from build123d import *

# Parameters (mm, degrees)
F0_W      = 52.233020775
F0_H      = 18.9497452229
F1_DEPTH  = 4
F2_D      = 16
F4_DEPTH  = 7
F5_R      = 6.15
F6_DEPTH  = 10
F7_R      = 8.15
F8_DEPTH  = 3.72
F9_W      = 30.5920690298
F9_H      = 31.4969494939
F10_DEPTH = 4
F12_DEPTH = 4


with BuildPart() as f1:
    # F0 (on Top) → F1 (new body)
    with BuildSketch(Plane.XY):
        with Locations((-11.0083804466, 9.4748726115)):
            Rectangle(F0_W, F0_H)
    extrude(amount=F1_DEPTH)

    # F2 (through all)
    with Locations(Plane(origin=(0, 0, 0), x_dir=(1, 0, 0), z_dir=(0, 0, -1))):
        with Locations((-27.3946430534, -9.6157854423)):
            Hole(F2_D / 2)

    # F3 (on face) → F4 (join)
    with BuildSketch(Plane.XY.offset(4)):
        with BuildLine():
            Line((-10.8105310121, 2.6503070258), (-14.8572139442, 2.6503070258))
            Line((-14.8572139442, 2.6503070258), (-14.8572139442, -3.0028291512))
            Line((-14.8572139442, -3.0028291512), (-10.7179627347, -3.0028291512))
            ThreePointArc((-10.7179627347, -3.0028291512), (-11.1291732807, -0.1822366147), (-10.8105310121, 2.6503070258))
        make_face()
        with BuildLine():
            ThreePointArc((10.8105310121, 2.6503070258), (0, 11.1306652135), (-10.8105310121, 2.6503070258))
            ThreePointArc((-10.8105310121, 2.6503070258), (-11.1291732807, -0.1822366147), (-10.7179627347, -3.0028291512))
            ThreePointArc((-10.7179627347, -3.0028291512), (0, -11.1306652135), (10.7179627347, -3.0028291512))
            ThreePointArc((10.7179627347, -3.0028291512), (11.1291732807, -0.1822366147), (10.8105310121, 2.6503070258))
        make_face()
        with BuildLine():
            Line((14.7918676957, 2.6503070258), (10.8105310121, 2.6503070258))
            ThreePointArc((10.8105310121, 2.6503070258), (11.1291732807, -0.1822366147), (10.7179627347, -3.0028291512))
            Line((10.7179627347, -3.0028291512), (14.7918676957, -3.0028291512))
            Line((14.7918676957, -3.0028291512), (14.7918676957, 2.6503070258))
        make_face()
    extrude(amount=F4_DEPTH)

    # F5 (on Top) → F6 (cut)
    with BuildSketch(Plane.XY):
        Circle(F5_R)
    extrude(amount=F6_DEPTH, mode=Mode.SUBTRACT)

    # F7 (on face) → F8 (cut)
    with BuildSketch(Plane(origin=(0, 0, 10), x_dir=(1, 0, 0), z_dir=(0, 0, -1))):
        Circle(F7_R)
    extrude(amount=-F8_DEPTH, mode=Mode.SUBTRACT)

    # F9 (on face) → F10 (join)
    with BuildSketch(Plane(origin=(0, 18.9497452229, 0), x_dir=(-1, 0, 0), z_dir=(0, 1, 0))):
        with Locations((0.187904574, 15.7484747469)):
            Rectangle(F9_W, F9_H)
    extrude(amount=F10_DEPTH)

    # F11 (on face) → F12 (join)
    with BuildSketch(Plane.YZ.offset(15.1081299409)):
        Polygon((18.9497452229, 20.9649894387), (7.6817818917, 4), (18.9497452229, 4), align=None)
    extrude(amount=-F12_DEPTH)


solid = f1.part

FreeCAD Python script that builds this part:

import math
import FreeCAD as App
import Part
import Sketcher
from FreeCAD import Vector
Q = App.Units.Quantity


def add_polygon(sketch, points):
    """Adds a closed chain of lines whose ends are joined by coincident constraints."""
    first, n = sketch.GeometryCount, len(points)
    for a, b in zip(points, points[1:] + points[:1]):
        sketch.addGeometry(Part.LineSegment(App.Vector(*a, 0), App.Vector(*b, 0)), False)
    for i in range(n):
        sketch.addConstraint(Sketcher.Constraint("Coincident", first + i, 2, first + (i + 1) % n, 1))

doc = App.newDocument("Part")
body = doc.addObject("PartDesign::Body", "Body")

sketch1 = doc.addObject("Sketcher::SketchObject", "Sketch")
body.addObject(sketch1)
sketch1.AttachmentSupport = (doc.XY_Plane, [""])
sketch1.MapMode = "FlatFace"
add_polygon(sketch1, [(-37, 19), (-37, 0), (15, 0), (15, 19)])
sketch1.addConstraint([
    Sketcher.Constraint("Vertical", 0),
    Sketcher.Constraint("Horizontal", 1),
    Sketcher.Constraint("Vertical", 2),
    Sketcher.Constraint("Horizontal", 3),
    Sketcher.Constraint("PointOnObject", 0, 2, -1),
    Sketcher.Constraint("DistanceX", 1, 1, 1, 2, Q("52.233021 mm")),
    Sketcher.Constraint("DistanceY", 0, 2, 0, 1, Q("18.949745 mm")),
    Sketcher.Constraint("DistanceX", 0, 2, -1, 1, Q("37.124891 mm")),
])
pad1 = doc.addObject("PartDesign::Pad", "Pad")
body.addObject(pad1)
pad1.Profile = sketch1
pad1.Length = 4

sketch2 = doc.addObject("Sketcher::SketchObject", "Sketch001")
body.addObject(sketch2)
sketch2.AttachmentSupport = (doc.XY_Plane, [""])
sketch2.MapMode = "FlatFace"
sketch2.addGeometry(Part.Circle(Vector(-27, 10, 0), Vector(0, 0, 1), 8), False)
sketch2.addConstraint([
    Sketcher.Constraint("Diameter", 0, Q("16 mm")),
    Sketcher.Constraint("DistanceX", 0, 3, -1, 1, Q("27.394643 mm")),
    Sketcher.Constraint("DistanceY", -1, 1, 0, 3, Q("9.615785 mm")),
])
doc.recompute()
hole = doc.addObject("PartDesign::Hole", "Hole")
body.addObject(hole)
hole.Profile = sketch2
hole.ThreadType = "None"
hole.Diameter = 16
hole.DepthType = "ThroughAll"
hole.Reversed = True

sketch3 = doc.addObject("Sketcher::SketchObject", "Sketch002")
body.addObject(sketch3)
sketch3.AttachmentSupport = (doc.XY_Plane, [""])
sketch3.MapMode = "FlatFace"
sketch3.AttachmentOffset = App.Placement(Vector(0, 0, 4), App.Rotation())
sketch3.addGeometry([
    Part.LineSegment(Vector(-10.8, 2.7, 0), Vector(-14.9, 2.7, 0)),
    Part.LineSegment(Vector(-14.9, 2.7, 0), Vector(-14.9, -3, 0)),
    Part.LineSegment(Vector(-14.9, -3, 0), Vector(-10.7, -3, 0)),
    Part.ArcOfCircle(Part.Circle(Vector(0, 0, 0), Vector(0, 0, 1), 11.1), math.radians(-164), math.radians(-16)),
    Part.LineSegment(Vector(10.7, -3, 0), Vector(14.8, -3, 0)),
    Part.LineSegment(Vector(14.8, -3, 0), Vector(14.8, 2.7, 0)),
    Part.LineSegment(Vector(14.8, 2.7, 0), Vector(10.8, 2.7, 0)),
    Part.ArcOfCircle(Part.Circle(Vector(0, 0, 0), Vector(0, 0, 1), 11.1), math.radians(14), math.radians(166)),
], False)
sketch3.addConstraint([
    Sketcher.Constraint("Coincident", 0, 2, 1, 1),
    Sketcher.Constraint("Coincident", 1, 2, 2, 1),
    Sketcher.Constraint("Coincident", 2, 2, 3, 1),
    Sketcher.Constraint("Coincident", 3, 2, 4, 1),
    Sketcher.Constraint("Coincident", 4, 2, 5, 1),
    Sketcher.Constraint("Coincident", 5, 2, 6, 1),
    Sketcher.Constraint("Coincident", 6, 2, 7, 1),
    Sketcher.Constraint("Coincident", 7, 2, 0, 1),
    Sketcher.Constraint("Horizontal", 0),
    Sketcher.Constraint("Vertical", 1),
    Sketcher.Constraint("Horizontal", 2),
    Sketcher.Constraint("Horizontal", 4),
    Sketcher.Constraint("Vertical", 5),
    Sketcher.Constraint("Horizontal", 6),
    Sketcher.Constraint("Coincident", 3, 3, -1, 1),
    Sketcher.Constraint("Coincident", 7, 3, -1, 1),
    Sketcher.Constraint("Equal", 3, 7),
    Sketcher.Constraint("Horizontal", 2, 2, 3, 2),
    Sketcher.Constraint("Horizontal", 0, 2, 5, 2),
    Sketcher.Constraint("Radius", 3, Q("11.130665 mm")),
    Sketcher.Constraint("DistanceX", 2, 1, 2, 2, Q("4.139251 mm")),
    Sketcher.Constraint("DistanceX", 0, 2, 0, 1, Q("4.046683 mm")),
    Sketcher.Constraint("DistanceX", 4, 1, 4, 2, Q("4.073905 mm")),
    Sketcher.Constraint("DistanceY", 1, 2, 1, 1, Q("5.653136 mm")),
])
pad2 = doc.addObject("PartDesign::Pad", "Pad001")
body.addObject(pad2)
pad2.Profile = sketch3
pad2.Length = 7

sketch4 = doc.addObject("Sketcher::SketchObject", "Sketch003")
body.addObject(sketch4)
sketch4.AttachmentSupport = (doc.XY_Plane, [""])
sketch4.MapMode = "FlatFace"
sketch4.addGeometry(Part.Circle(Vector(0, 0, 0), Vector(0, 0, 1), 6), False)
sketch4.addConstraint([
    Sketcher.Constraint("Coincident", 0, 3, -1, 1),
    Sketcher.Constraint("Diameter", 0, Q("12.3 mm")),
])
pocket1 = doc.addObject("PartDesign::Pocket", "Pocket")
body.addObject(pocket1)
pocket1.Profile = sketch4
pocket1.Length = 10
pocket1.Reversed = True

sketch5 = doc.addObject("Sketcher::SketchObject", "Sketch004")
body.addObject(sketch5)
sketch5.AttachmentSupport = (doc.XY_Plane, [""])
sketch5.MapMode = "FlatFace"
sketch5.AttachmentOffset = App.Placement(Vector(0, 0, 10), App.Rotation())
sketch5.addGeometry(Part.Circle(Vector(0, 0, 0), Vector(0, 0, 1), 8), False)
sketch5.addConstraint([
    Sketcher.Constraint("Coincident", 0, 3, -1, 1),
    Sketcher.Constraint("Diameter", 0, Q("16.3 mm")),
])
pocket2 = doc.addObject("PartDesign::Pocket", "Pocket001")
body.addObject(pocket2)
pocket2.Profile = sketch5
pocket2.Length = 3.72
pocket2.Reversed = True

sketch6 = doc.addObject("Sketcher::SketchObject", "Sketch005")
body.addObject(sketch6)
sketch6.AttachmentSupport = (doc.XZ_Plane, [""])
sketch6.MapMode = "FlatFace"
sketch6.AttachmentOffset = App.Placement(Vector(0, 0, -18.949745), App.Rotation())
add_polygon(sketch6, [(15, 31), (15, 0), (-15, 0), (-15, 31)])
sketch6.addConstraint([
    Sketcher.Constraint("Vertical", 0),
    Sketcher.Constraint("Horizontal", 1),
    Sketcher.Constraint("Vertical", 2),
    Sketcher.Constraint("Horizontal", 3),
    Sketcher.Constraint("PointOnObject", 0, 2, -1),
    Sketcher.Constraint("DistanceX", 1, 2, 1, 1, Q("30.592069 mm")),
    Sketcher.Constraint("DistanceY", 0, 2, 0, 1, Q("31.496949 mm")),
    Sketcher.Constraint("DistanceX", -1, 1, 0, 2, Q("15.10813 mm")),
])
pad3 = doc.addObject("PartDesign::Pad", "Pad002")
body.addObject(pad3)
pad3.Profile = sketch6
pad3.Length = 4
pad3.Reversed = True

sketch7 = doc.addObject("Sketcher::SketchObject", "Sketch006")
body.addObject(sketch7)
sketch7.AttachmentSupport = (doc.YZ_Plane, [""])
sketch7.MapMode = "FlatFace"
sketch7.AttachmentOffset = App.Placement(Vector(0, 0, 15.10813), App.Rotation())
add_polygon(sketch7, [(19, 21), (8, 4), (19, 4)])
sketch7.addConstraint([
    Sketcher.Constraint("Horizontal", 1),
    Sketcher.Constraint("Vertical", 2),
    Sketcher.Constraint("DistanceY", -1, 1, 0, 2, Q("4 mm")),
    Sketcher.Constraint("DistanceY", 2, 1, 2, 2, Q("16.964989 mm")),
    Sketcher.Constraint("DistanceX", 1, 1, 1, 2, Q("11.267963 mm")),
    Sketcher.Constraint("DistanceX", -1, 1, 0, 2, Q("7.681782 mm")),
])
pad4 = doc.addObject("PartDesign::Pad", "Pad003")
body.addObject(pad4)
pad4.Profile = sketch7
pad4.Length = 4
pad4.Reversed = True

doc.recompute()
